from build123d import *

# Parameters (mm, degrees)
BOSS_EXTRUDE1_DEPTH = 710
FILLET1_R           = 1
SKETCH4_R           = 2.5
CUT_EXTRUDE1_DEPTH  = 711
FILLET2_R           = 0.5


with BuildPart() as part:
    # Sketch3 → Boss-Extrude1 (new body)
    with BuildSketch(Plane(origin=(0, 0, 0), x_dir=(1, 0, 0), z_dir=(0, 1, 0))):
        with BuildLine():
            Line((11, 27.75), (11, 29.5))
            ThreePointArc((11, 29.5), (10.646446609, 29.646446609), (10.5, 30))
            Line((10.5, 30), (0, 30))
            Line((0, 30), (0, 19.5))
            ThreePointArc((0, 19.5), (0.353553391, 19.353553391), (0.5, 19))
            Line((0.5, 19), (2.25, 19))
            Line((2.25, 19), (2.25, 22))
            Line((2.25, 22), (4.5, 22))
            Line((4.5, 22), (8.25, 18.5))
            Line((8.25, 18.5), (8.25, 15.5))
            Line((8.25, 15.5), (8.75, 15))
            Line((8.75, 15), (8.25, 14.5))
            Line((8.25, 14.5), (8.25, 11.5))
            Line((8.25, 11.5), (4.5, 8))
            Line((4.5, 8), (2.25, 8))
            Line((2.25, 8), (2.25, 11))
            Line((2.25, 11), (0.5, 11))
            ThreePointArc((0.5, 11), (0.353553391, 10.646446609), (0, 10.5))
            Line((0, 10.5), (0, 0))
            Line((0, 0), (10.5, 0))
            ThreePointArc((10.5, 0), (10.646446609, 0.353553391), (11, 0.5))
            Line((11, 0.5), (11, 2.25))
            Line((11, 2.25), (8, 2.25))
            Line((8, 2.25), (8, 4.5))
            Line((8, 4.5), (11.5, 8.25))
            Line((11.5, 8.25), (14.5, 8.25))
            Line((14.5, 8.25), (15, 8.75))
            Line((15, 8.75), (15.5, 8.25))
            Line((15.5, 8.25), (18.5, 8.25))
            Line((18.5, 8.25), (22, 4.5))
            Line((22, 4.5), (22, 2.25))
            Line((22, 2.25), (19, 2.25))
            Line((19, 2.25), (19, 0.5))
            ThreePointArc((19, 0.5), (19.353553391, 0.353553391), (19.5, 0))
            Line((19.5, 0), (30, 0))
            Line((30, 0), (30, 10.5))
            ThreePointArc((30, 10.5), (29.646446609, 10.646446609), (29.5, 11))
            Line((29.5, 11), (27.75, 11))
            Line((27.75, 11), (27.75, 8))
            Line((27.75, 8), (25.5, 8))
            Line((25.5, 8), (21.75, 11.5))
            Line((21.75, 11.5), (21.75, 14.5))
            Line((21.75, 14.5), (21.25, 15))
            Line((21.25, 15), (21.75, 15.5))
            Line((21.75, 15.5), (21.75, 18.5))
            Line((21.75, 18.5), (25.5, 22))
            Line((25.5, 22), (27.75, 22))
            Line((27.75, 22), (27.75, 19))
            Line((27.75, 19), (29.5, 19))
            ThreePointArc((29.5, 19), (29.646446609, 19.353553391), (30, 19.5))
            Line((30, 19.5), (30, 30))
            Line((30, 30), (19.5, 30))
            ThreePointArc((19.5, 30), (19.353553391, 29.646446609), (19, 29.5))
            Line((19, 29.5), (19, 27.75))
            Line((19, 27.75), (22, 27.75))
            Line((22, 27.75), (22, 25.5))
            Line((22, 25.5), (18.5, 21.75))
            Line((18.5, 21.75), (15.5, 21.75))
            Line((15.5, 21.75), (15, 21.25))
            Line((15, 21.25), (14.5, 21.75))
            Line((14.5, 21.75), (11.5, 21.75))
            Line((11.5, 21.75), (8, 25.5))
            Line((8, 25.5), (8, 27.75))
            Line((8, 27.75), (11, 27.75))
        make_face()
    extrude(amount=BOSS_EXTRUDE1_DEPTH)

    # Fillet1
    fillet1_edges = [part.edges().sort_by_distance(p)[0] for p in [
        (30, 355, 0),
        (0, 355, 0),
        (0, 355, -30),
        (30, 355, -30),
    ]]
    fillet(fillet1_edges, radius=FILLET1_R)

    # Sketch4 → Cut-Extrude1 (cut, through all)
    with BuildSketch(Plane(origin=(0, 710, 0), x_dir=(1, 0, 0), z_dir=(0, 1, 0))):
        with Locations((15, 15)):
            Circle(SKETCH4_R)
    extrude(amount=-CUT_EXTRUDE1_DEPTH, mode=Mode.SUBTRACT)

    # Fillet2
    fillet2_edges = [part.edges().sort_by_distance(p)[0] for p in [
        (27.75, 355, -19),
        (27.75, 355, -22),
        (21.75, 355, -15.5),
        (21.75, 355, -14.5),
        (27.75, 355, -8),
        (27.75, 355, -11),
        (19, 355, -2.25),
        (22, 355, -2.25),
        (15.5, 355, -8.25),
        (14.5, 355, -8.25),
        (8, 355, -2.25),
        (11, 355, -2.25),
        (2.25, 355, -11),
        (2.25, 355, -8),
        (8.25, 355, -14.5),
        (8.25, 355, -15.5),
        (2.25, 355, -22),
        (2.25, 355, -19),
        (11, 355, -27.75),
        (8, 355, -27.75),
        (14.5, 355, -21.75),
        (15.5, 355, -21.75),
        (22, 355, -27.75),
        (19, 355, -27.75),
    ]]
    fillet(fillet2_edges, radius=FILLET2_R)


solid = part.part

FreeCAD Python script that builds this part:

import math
import FreeCAD as App
import Part
import Sketcher

V = App.Vector


def edges_at(feature, points):
    """Names of the edges that pass closest to the given points."""
    edges = feature.Shape.Edges
    near = lambda p: min(range(len(edges)), key=lambda i: edges[i].distToShape(Part.Vertex(*p))[0])
    return sorted({f"Edge{near(p) + 1}" for p in points})

doc = App.newDocument("Part")
body = doc.addObject("PartDesign::Body", "Body")

sketch1 = body.newObject("Sketcher::SketchObject", "Sketch")
sketch1.AttachmentSupport = (doc.getObject("XZ_Plane"), [""])
sketch1.MapMode = "FlatFace"
sketch1.addGeometry(Part.LineSegment(V(11, -27.75, 0), V(11, -29.5, 0)), False)
sketch1.addGeometry(Part.ArcOfCircle(Part.Circle(V(11, -30, 0), V(0, 0, 1), 0.5), math.radians(90), math.radians(180)), False)
sketch1.addGeometry(Part.LineSegment(V(10.5, -30, 0), V(0, -30, 0)), False)
sketch1.addGeometry(Part.LineSegment(V(0, -30, 0), V(0, -19.5, 0)), False)
sketch1.addGeometry(Part.ArcOfCircle(Part.Circle(V(0, -19, 0), V(0, 0, 1), 0.5), math.radians(-90), math.radians(0)), False)
sketch1.addGeometry(Part.LineSegment(V(0.5, -19, 0), V(2.25, -19, 0)), False)
sketch1.addGeometry(Part.LineSegment(V(2.25, -19, 0), V(2.25, -22, 0)), False)
sketch1.addGeometry(Part.LineSegment(V(2.25, -22, 0), V(4.5, -22, 0)), False)
sketch1.addGeometry(Part.LineSegment(V(4.5, -22, 0), V(8.25, -18.5, 0)), False)
sketch1.addGeometry(Part.LineSegment(V(8.25, -18.5, 0), V(8.25, -15.5, 0)), False)
sketch1.addGeometry(Part.LineSegment(V(8.25, -15.5, 0), V(8.75, -15, 0)), False)
sketch1.addGeometry(Part.LineSegment(V(8.75, -15, 0), V(8.25, -14.5, 0)), False)
sketch1.addGeometry(Part.LineSegment(V(8.25, -14.5, 0), V(8.25, -11.5, 0)), False)
sketch1.addGeometry(Part.LineSegment(V(8.25, -11.5, 0), V(4.5, -8, 0)), False)
sketch1.addGeometry(Part.LineSegment(V(4.5, -8, 0), V(2.25, -8, 0)), False)
sketch1.addGeometry(Part.LineSegment(V(2.25, -8, 0), V(2.25, -11, 0)), False)
sketch1.addGeometry(Part.LineSegment(V(2.25, -11, 0), V(0.5, -11, 0)), False)
sketch1.addGeometry(Part.ArcOfCircle(Part.Circle(V(0, -11, 0), V(0, 0, 1), 0.5), math.radians(0), math.radians(90)), False)
sketch1.addGeometry(Part.LineSegment(V(0, -10.5, 0), V(0, 0, 0)), False)
sketch1.addGeometry(Part.LineSegment(V(0, 0, 0), V(10.5, 0, 0)), False)
sketch1.addGeometry(Part.ArcOfCircle(Part.Circle(V(11, 0, 0), V(0, 0, 1), 0.5), math.radians(180), math.radians(270)), False)
sketch1.addGeometry(Part.LineSegment(V(11, -0.5, 0), V(11, -2.25, 0)), False)
sketch1.addGeometry(Part.LineSegment(V(11, -2.25, 0), V(8, -2.25, 0)), False)
sketch1.addGeometry(Part.LineSegment(V(8, -2.25, 0), V(8, -4.5, 0)), False)
sketch1.addGeometry(Part.LineSegment(V(8, -4.5, 0), V(11.5, -8.25, 0)), False)
sketch1.addGeometry(Part.LineSegment(V(11.5, -8.25, 0), V(14.5, -8.25, 0)), False)
sketch1.addGeometry(Part.LineSegment(V(14.5, -8.25, 0), V(15, -8.75, 0)), False)
sketch1.addGeometry(Part.LineSegment(V(15, -8.75, 0), V(15.5, -8.25, 0)), False)
sketch1.addGeometry(Part.LineSegment(V(15.5, -8.25, 0), V(18.5, -8.25, 0)), False)
sketch1.addGeometry(Part.LineSegment(V(18.5, -8.25, 0), V(22, -4.5, 0)), False)
sketch1.addGeometry(Part.LineSegment(V(22, -4.5, 0), V(22, -2.25, 0)), False)
sketch1.addGeometry(Part.LineSegment(V(22, -2.25, 0), V(19, -2.25, 0)), False)
sketch1.addGeometry(Part.LineSegment(V(19, -2.25, 0), V(19, -0.5, 0)), False)
sketch1.addGeometry(Part.ArcOfCircle(Part.Circle(V(19, 0, 0), V(0, 0, 1), 0.5), math.radians(-90), math.radians(0)), False)
sketch1.addGeometry(Part.LineSegment(V(19.5, 0, 0), V(30, 0, 0)), False)
sketch1.addGeometry(Part.LineSegment(V(30, 0, 0), V(30, -10.5, 0)), False)
sketch1.addGeometry(Part.ArcOfCircle(Part.Circle(V(30, -11, 0), V(0, 0, 1), 0.5), math.radians(90), math.radians(180)), False)
sketch1.addGeometry(Part.LineSegment(V(29.5, -11, 0), V(27.75, -11, 0)), False)
sketch1.addGeometry(Part.LineSegment(V(27.75, -11, 0), V(27.75, -8, 0)), False)
sketch1.addGeometry(Part.LineSegment(V(27.75, -8, 0), V(25.5, -8, 0)), False)
sketch1.addGeometry(Part.LineSegment(V(25.5, -8, 0), V(21.75, -11.5, 0)), False)
sketch1.addGeometry(Part.LineSegment(V(21.75, -11.5, 0), V(21.75, -14.5, 0)), False)
sketch1.addGeometry(Part.LineSegment(V(21.75, -14.5, 0), V(21.25, -15, 0)), False)
sketch1.addGeometry(Part.LineSegment(V(21.25, -15, 0), V(21.75, -15.5, 0)), False)
sketch1.addGeometry(Part.LineSegment(V(21.75, -15.5, 0), V(21.75, -18.5, 0)), False)
sketch1.addGeometry(Part.LineSegment(V(21.75, -18.5, 0), V(25.5, -22, 0)), False)
sketch1.addGeometry(Part.LineSegment(V(25.5, -22, 0), V(27.75, -22, 0)), False)
sketch1.addGeometry(Part.LineSegment(V(27.75, -22, 0), V(27.75, -19, 0)), False)
sketch1.addGeometry(Part.LineSegment(V(27.75, -19, 0), V(29.5, -19, 0)), False)
sketch1.addGeometry(Part.ArcOfCircle(Part.Circle(V(30, -19, 0), V(0, 0, 1), 0.5), math.radians(180), math.radians(270)), False)
sketch1.addGeometry(Part.LineSegment(V(30, -19.5, 0), V(30, -30, 0)), False)
sketch1.addGeometry(Part.LineSegment(V(30, -30, 0), V(19.5, -30, 0)), False)
sketch1.addGeometry(Part.ArcOfCircle(Part.Circle(V(19, -30, 0), V(0, 0, 1), 0.5), math.radians(0), math.radians(90)), False)
sketch1.addGeometry(Part.LineSegment(V(19, -29.5, 0), V(19, -27.75, 0)), False)
sketch1.addGeometry(Part.LineSegment(V(19, -27.75, 0), V(22, -27.75, 0)), False)
sketch1.addGeometry(Part.LineSegment(V(22, -27.75, 0), V(22, -25.5, 0)), False)
sketch1.addGeometry(Part.LineSegment(V(22, -25.5, 0), V(18.5, -21.75, 0)), False)
sketch1.addGeometry(Part.LineSegment(V(18.5, -21.75, 0), V(15.5, -21.75, 0)), False)
sketch1.addGeometry(Part.LineSegment(V(15.5, -21.75, 0), V(15, -21.25, 0)), False)
sketch1.addGeometry(Part.LineSegment(V(15, -21.25, 0), V(14.5, -21.75, 0)), False)
sketch1.addGeometry(Part.LineSegment(V(14.5, -21.75, 0), V(11.5, -21.75, 0)), False)
sketch1.addGeometry(Part.LineSegment(V(11.5, -21.75, 0), V(8, -25.5, 0)), False)
sketch1.addGeometry(Part.LineSegment(V(8, -25.5, 0), V(8, -27.75, 0)), False)
sketch1.addGeometry(Part.LineSegment(V(8, -27.75, 0), V(11, -27.75, 0)), False)
sketch1.addConstraint(Sketcher.Constraint("Coincident", 0, 2, 1, 1))
sketch1.addConstraint(Sketcher.Constraint("Coincident", 1, 2, 2, 1))
sketch1.addConstraint(Sketcher.Constraint("Coincident", 2, 2, 3, 1))
sketch1.addConstraint(Sketcher.Constraint("Coincident", 3, 2, 4, 1))
sketch1.addConstraint(Sketcher.Constraint("Coincident", 4, 2, 5, 1))
sketch1.addConstraint(Sketcher.Constraint("Coincident", 5, 2, 6, 1))
sketch1.addConstraint(Sketcher.Constraint("Coincident", 6, 2, 7, 1))
sketch1.addConstraint(Sketcher.Constraint("Coincident", 7, 2, 8, 1))
sketch1.addConstraint(Sketcher.Constraint("Coincident", 8, 2, 9, 1))
sketch1.addConstraint(Sketcher.Constraint("Coincident", 9, 2, 10, 1))
sketch1.addConstraint(Sketcher.Constraint("Coincident", 10, 2, 11, 1))
sketch1.addConstraint(Sketcher.Constraint("Coincident", 11, 2, 12, 1))
sketch1.addConstraint(Sketcher.Constraint("Coincident", 12, 2, 13, 1))
sketch1.addConstraint(Sketcher.Constraint("Coincident", 13, 2, 14, 1))
sketch1.addConstraint(Sketcher.Constraint("Coincident", 14, 2, 15, 1))
sketch1.addConstraint(Sketcher.Constraint("Coincident", 15, 2, 16, 1))
sketch1.addConstraint(Sketcher.Constraint("Coincident", 16, 2, 17, 1))
sketch1.addConstraint(Sketcher.Constraint("Coincident", 17, 2, 18, 1))
sketch1.addConstraint(Sketcher.Constraint("Coincident", 18, 2, 19, 1))
sketch1.addConstraint(Sketcher.Constraint("Coincident", 19, 2, 20, 1))
sketch1.addConstraint(Sketcher.Constraint("Coincident", 20, 2, 21, 1))
sketch1.addConstraint(Sketcher.Constraint("Coincident", 21, 2, 22, 1))
sketch1.addConstraint(Sketcher.Constraint("Coincident", 22, 2, 23, 1))
sketch1.addConstraint(Sketcher.Constraint("Coincident", 23, 2, 24, 1))
sketch1.addConstraint(Sketcher.Constraint("Coincident", 24, 2, 25, 1))
sketch1.addConstraint(Sketcher.Constraint("Coincident", 25, 2, 26, 1))
sketch1.addConstraint(Sketcher.Constraint("Coincident", 26, 2, 27, 1))
sketch1.addConstraint(Sketcher.Constraint("Coincident", 27, 2, 28, 1))
sketch1.addConstraint(Sketcher.Constraint("Coincident", 28, 2, 29, 1))
sketch1.addConstraint(Sketcher.Constraint("Coincident", 29, 2, 30, 1))
sketch1.addConstraint(Sketcher.Constraint("Coincident", 30, 2, 31, 1))
sketch1.addConstraint(Sketcher.Constraint("Coincident", 31, 2, 32, 1))
sketch1.addConstraint(Sketcher.Constraint("Coincident", 32, 2, 33, 1))
sketch1.addConstraint(Sketcher.Constraint("Coincident", 33, 2, 34, 1))
sketch1.addConstraint(Sketcher.Constraint("Coincident", 34, 2, 35, 1))
sketch1.addConstraint(Sketcher.Constraint("Coincident", 35, 2, 36, 1))
sketch1.addConstraint(Sketcher.Constraint("Coincident", 36, 2, 37, 1))
sketch1.addConstraint(Sketcher.Constraint("Coincident", 37, 2, 38, 1))
sketch1.addConstraint(Sketcher.Constraint("Coincident", 38, 2, 39, 1))
sketch1.addConstraint(Sketcher.Constraint("Coincident", 39, 2, 40, 1))
sketch1.addConstraint(Sketcher.Constraint("Coincident", 40, 2, 41, 1))
sketch1.addConstraint(Sketcher.Constraint("Coincident", 41, 2, 42, 1))
sketch1.addConstraint(Sketcher.Constraint("Coincident", 42, 2, 43, 1))
sketch1.addConstraint(Sketcher.Constraint("Coincident", 43, 2, 44, 1))
sketch1.addConstraint(Sketcher.Constraint("Coincident", 44, 2, 45, 1))
sketch1.addConstraint(Sketcher.Constraint("Coincident", 45, 2, 46, 1))
sketch1.addConstraint(Sketcher.Constraint("Coincident", 46, 2, 47, 1))
sketch1.addConstraint(Sketcher.Constraint("Coincident", 47, 2, 48, 1))
sketch1.addConstraint(Sketcher.Constraint("Coincident", 48, 2, 49, 1))
sketch1.addConstraint(Sketcher.Constraint("Coincident", 49, 2, 50, 1))
sketch1.addConstraint(Sketcher.Constraint("Coincident", 50, 2, 51, 1))
sketch1.addConstraint(Sketcher.Constraint("Coincident", 51, 2, 52, 1))
sketch1.addConstraint(Sketcher.Constraint("Coincident", 52, 2, 53, 1))
sketch1.addConstraint(Sketcher.Constraint("Coincident", 53, 2, 54, 1))
sketch1.addConstraint(Sketcher.Constraint("Coincident", 54, 2, 55, 1))
sketch1.addConstraint(Sketcher.Constraint("Coincident", 55, 2, 56, 1))
sketch1.addConstraint(Sketcher.Constraint("Coincident", 56, 2, 57, 1))
sketch1.addConstraint(Sketcher.Constraint("Coincident", 57, 2, 58, 1))
sketch1.addConstraint(Sketcher.Constraint("Coincident", 58, 2, 59, 1))
sketch1.addConstraint(Sketcher.Constraint("Coincident", 59, 2, 60, 1))
sketch1.addConstraint(Sketcher.Constraint("Coincident", 60, 2, 61, 1))
sketch1.addConstraint(Sketcher.Constraint("Coincident", 61, 2, 62, 1))
sketch1.addConstraint(Sketcher.Constraint("Coincident", 62, 2, 63, 1))
sketch1.addConstraint(Sketcher.Constraint("Coincident", 63, 2, 0, 1))
sketch1.addConstraint(Sketcher.Constraint("Vertical", 0))
sketch1.addConstraint(Sketcher.Constraint("Horizontal", 2))
sketch1.addConstraint(Sketcher.Constraint("Vertical", 3))
sketch1.addConstraint(Sketcher.Constraint("Horizontal", 5))
sketch1.addConstraint(Sketcher.Constraint("Vertical", 6))
sketch1.addConstraint(Sketcher.Constraint("Horizontal", 7))
sketch1.addConstraint(Sketcher.Constraint("Vertical", 9))
sketch1.addConstraint(Sketcher.Constraint("Vertical", 12))
sketch1.addConstraint(Sketcher.Constraint("Horizontal", 14))
sketch1.addConstraint(Sketcher.Constraint("Vertical", 15))
sketch1.addConstraint(Sketcher.Constraint("Horizontal", 16))
sketch1.addConstraint(Sketcher.Constraint("Vertical", 18))
sketch1.addConstraint(Sketcher.Constraint("Horizontal", 19))
sketch1.addConstraint(Sketcher.Constraint("Vertical", 21))
sketch1.addConstraint(Sketcher.Constraint("Horizontal", 22))
sketch1.addConstraint(Sketcher.Constraint("Vertical", 23))
sketch1.addConstraint(Sketcher.Constraint("Horizontal", 25))
sketch1.addConstraint(Sketcher.Constraint("Horizontal", 28))
sketch1.addConstraint(Sketcher.Constraint("Vertical", 30))
sketch1.addConstraint(Sketcher.Constraint("Horizontal", 31))
sketch1.addConstraint(Sketcher.Constraint("Vertical", 32))
sketch1.addConstraint(Sketcher.Constraint("Horizontal", 34))
sketch1.addConstraint(Sketcher.Constraint("Vertical", 35))
sketch1.addConstraint(Sketcher.Constraint("Horizontal", 37))
sketch1.addConstraint(Sketcher.Constraint("Vertical", 38))
sketch1.addConstraint(Sketcher.Constraint("Horizontal", 39))
sketch1.addConstraint(Sketcher.Constraint("Vertical", 41))
sketch1.addConstraint(Sketcher.Constraint("Vertical", 44))
sketch1.addConstraint(Sketcher.Constraint("Horizontal", 46))
sketch1.addConstraint(Sketcher.Constraint("Vertical", 47))
sketch1.addConstraint(Sketcher.Constraint("Horizontal", 48))
sketch1.addConstraint(Sketcher.Constraint("Vertical", 50))
sketch1.addConstraint(Sketcher.Constraint("Horizontal", 51))
sketch1.addConstraint(Sketcher.Constraint("Vertical", 53))
sketch1.addConstraint(Sketcher.Constraint("Horizontal", 54))
sketch1.addConstraint(Sketcher.Constraint("Vertical", 55))
sketch1.addConstraint(Sketcher.Constraint("Horizontal", 57))
sketch1.addConstraint(Sketcher.Constraint("Horizontal", 60))
sketch1.addConstraint(Sketcher.Constraint("Vertical", 62))
sketch1.addConstraint(Sketcher.Constraint("Horizontal", 63))
sketch1.addConstraint(Sketcher.Constraint("Coincident", 18, 2, -1, 1))
sketch1.addConstraint(Sketcher.Constraint("Equal", 1, 4))
sketch1.addConstraint(Sketcher.Constraint("Equal", 4, 17))
sketch1.addConstraint(Sketcher.Constraint("Equal", 17, 20))
sketch1.addConstraint(Sketcher.Constraint("Equal", 20, 33))
sketch1.addConstraint(Sketcher.Constraint("Equal", 33, 36))
sketch1.addConstraint(Sketcher.Constraint("Equal", 36, 49))
sketch1.addConstraint(Sketcher.Constraint("Equal", 49, 52))
sketch1.addConstraint(Sketcher.Constraint("PointOnObject", 4, 3, -2))
sketch1.addConstraint(Sketcher.Constraint("PointOnObject", 17, 3, -2))
sketch1.addConstraint(Sketcher.Constraint("PointOnObject", 20, 3, -1))
sketch1.addConstraint(Sketcher.Constraint("PointOnObject", 33, 3, -1))
sketch1.addConstraint(Sketcher.Constraint("PointOnObject", 2, 2, -2))
sketch1.addConstraint(Sketcher.Constraint("PointOnObject", 33, 2, -1))
sketch1.addConstraint(Sketcher.Constraint("Perpendicular", 10, 11))
sketch1.addConstraint(Sketcher.Constraint("Perpendicular", 8, 24))
sketch1.addConstraint(Sketcher.Constraint("Parallel", 11, 26))
sketch1.addConstraint(Sketcher.Constraint("Perpendicular", 26, 27))
sketch1.addConstraint(Sketcher.Constraint("Perpendicular", 13, 29))
sketch1.addConstraint(Sketcher.Constraint("Perpendicular", 24, 40))
sketch1.addConstraint(Sketcher.Constraint("Parallel", 27, 42))
sketch1.addConstraint(Sketcher.Constraint("Perpendicular", 42, 43))
sketch1.addConstraint(Sketcher.Constraint("Perpendicular", 29, 45))
sketch1.addConstraint(Sketcher.Constraint("Perpendicular", 40, 56))
sketch1.addConstraint(Sketcher.Constraint("Parallel", 43, 58))
sketch1.addConstraint(Sketcher.Constraint("Perpendicular", 58, 59))
sketch1.addConstraint(Sketcher.Constraint("Perpendicular", 45, 61))
sketch1.addConstraint(Sketcher.Constraint("Horizontal", 17, 3, 36, 3))
sketch1.addConstraint(Sketcher.Constraint("Horizontal", 4, 3, 49, 3))
sketch1.addConstraint(Sketcher.Constraint("Horizontal", 1, 3, 52, 3))
sketch1.addConstraint(Sketcher.Constraint("Horizontal", 52, 3, 1, 2))
sketch1.addConstraint(Sketcher.Constraint("Horizontal", 49, 3, 4, 2))
sketch1.addConstraint(Sketcher.Constraint("Horizontal", 36, 3, 15, 2))
sketch1.addConstraint(Sketcher.Constraint("Horizontal", 25, 2, 27, 2))
sketch1.addConstraint(Sketcher.Constraint("Horizontal", 23, 2, 29, 2))
sketch1.addConstraint(Sketcher.Constraint("Horizontal", 22, 2, 30, 2))
sketch1.addConstraint(Sketcher.Constraint("Horizontal", 16, 2, 36, 2))
sketch1.addConstraint(Sketcher.Constraint("Horizontal", 14, 2, 38, 2))
sketch1.addConstraint(Sketcher.Constraint("Horizontal", 12, 2, 40, 2))
sketch1.addConstraint(Sketcher.Constraint("Horizontal", 11, 2, 41, 2))
sketch1.addConstraint(Sketcher.Constraint("Horizontal", 10, 2, 42, 2))
sketch1.addConstraint(Sketcher.Constraint("Horizontal", 9, 2, 43, 2))
sketch1.addConstraint(Sketcher.Constraint("Horizontal", 8, 2, 44, 2))
sketch1.addConstraint(Sketcher.Constraint("Horizontal", 7, 2, 45, 2))
sketch1.addConstraint(Sketcher.Constraint("Horizontal", 5, 2, 47, 2))
sketch1.addConstraint(Sketcher.Constraint("Horizontal", 2, 2, 50, 2))
sketch1.addConstraint(Sketcher.Constraint("Horizontal", 57, 2, 59, 2))
sketch1.addConstraint(Sketcher.Constraint("Horizontal", 55, 2, 61, 2))
sketch1.addConstraint(Sketcher.Constraint("Horizontal", 54, 2, 62, 2))
sketch1.addConstraint(Sketcher.Constraint("Vertical", 1, 3, 20, 3))
sketch1.addConstraint(Sketcher.Constraint("Vertical", 36, 3, 49, 3))
sketch1.addConstraint(Sketcher.Constraint("Vertical", 33, 3, 52, 3))
sketch1.addConstraint(Sketcher.Constraint("Vertical", 20, 3, 0, 2))
sketch1.addConstraint(Sketcher.Constraint("Vertical", 9, 2, 11, 2))
sketch1.addConstraint(Sketcher.Constraint("Vertical", 7, 2, 13, 2))
sketch1.addConstraint(Sketcher.Constraint("Vertical", 6, 2, 14, 2))
sketch1.addConstraint(Sketcher.Constraint("Vertical", 0, 2, 20, 2))
sketch1.addConstraint(Sketcher.Constraint("Vertical", 52, 3, 31, 2))
sketch1.addConstraint(Sketcher.Constraint("Vertical", 49, 3, 34, 2))
sketch1.addConstraint(Sketcher.Constraint("Vertical", 41, 2, 43, 2))
sketch1.addConstraint(Sketcher.Constraint("Vertical", 39, 2, 45, 2))
sketch1.addConstraint(Sketcher.Constraint("Vertical", 38, 2, 46, 2))
sketch1.addConstraint(Sketcher.Constraint("Vertical", 35, 2, 49, 2))
sketch1.addConstraint(Sketcher.Constraint("Vertical", 32, 2, 52, 2))
sketch1.addConstraint(Sketcher.Constraint("Vertical", 30, 2, 54, 2))
sketch1.addConstraint(Sketcher.Constraint("Vertical", 28, 2, 56, 2))
sketch1.addConstraint(Sketcher.Constraint("Vertical", 27, 2, 57, 2))
sketch1.addConstraint(Sketcher.Constraint("Vertical", 26, 2, 58, 2))
sketch1.addConstraint(Sketcher.Constraint("Vertical", 24, 2, 60, 2))
sketch1.addConstraint(Sketcher.Constraint("Equal", 22, 25))
sketch1.addConstraint(Sketcher.Constraint("Equal", 25, 28))
sketch1.addConstraint(Sketcher.Constraint("Equal", 28, 31))
sketch1.addConstraint(Sketcher.Constraint("Equal", 19, 34))
sketch1.addConstraint(Sketcher.Constraint("Equal", 16, 37))
sketch1.addConstraint(Sketcher.Constraint("Equal", 14, 39))
sketch1.addConstraint(Sketcher.Constraint("Equal", 48, 0))
sketch1.addConstraint(Sketcher.Constraint("Equal", 51, 3))
sketch1.addConstraint(Sketcher.Constraint("Equal", 63, 6))
sketch1.addConstraint(Sketcher.Constraint("Equal", 6, 9))
sketch1.addConstraint(Sketcher.Constraint("Equal", 9, 12))
sketch1.addConstraint(Sketcher.Constraint("Equal", 12, 15))
sketch1.addConstraint(Sketcher.Constraint("Equal", 3, 18))
sketch1.addConstraint(Sketcher.Constraint("Equal", 0, 21))
sketch1.addConstraint(Sketcher.Constraint("Equal", 46, 23))
sketch1.addConstraint(Sketcher.Constraint("Equal", 30, 55))
sketch1.addConstraint(Sketcher.Constraint("Equal", 13, 24))
sketch1.addConstraint(Sketcher.Constraint("Equal", 11, 26))
sketch1.addConstraint(Sketcher.Constraint("Radius", 1, 0.5))
sketch1.addConstraint(Sketcher.Constraint("DistanceX", 22, 2, 22, 1, 3.0))
sketch1.addConstraint(Sketcher.Constraint("DistanceX", 2, 2, 2, 1, 10.5))
sketch1.addConstraint(Sketcher.Constraint("DistanceY", 1, 3, -1, 1, 30.0))
sketch1.addConstraint(Sketcher.Constraint("DistanceX", 5, 1, 5, 2, 1.75))
sketch1.addConstraint(Sketcher.Constraint("DistanceX", 7, 1, 7, 2, 2.25))
sketch1.addConstraint(Sketcher.Constraint("DistanceY", 8, 2, -1, 1, 18.5))
sketch1.addConstraint(Sketcher.Constraint("DistanceX", -1, 1, 8, 2, 8.25))
pad1 = body.newObject("PartDesign::Pad", "Pad")
pad1.Profile = sketch1
pad1.Length = 710
pad1.Reversed = True
doc.recompute()

fillet = body.newObject("PartDesign::Fillet", "Fillet")
fillet.Base = (pad1, edges_at(pad1, [
    (30, 355, 0),
    (0, 355, 0),
    (0, 355, -30),
    (30, 355, -30),
]))
fillet.Radius = 1

sketch2 = body.newObject("Sketcher::SketchObject", "Sketch001")
sketch2.AttachmentSupport = (doc.getObject("XZ_Plane"), [""])
sketch2.MapMode = "FlatFace"
sketch2.AttachmentOffset = App.Placement(V(0, 0, -710), App.Rotation())
sketch2.addGeometry(Part.Circle(V(15, -15, 0), V(0, 0, 1), 2.5), False)
sketch2.addConstraint(Sketcher.Constraint("Diameter", 0, 5.0))
sketch2.addConstraint(Sketcher.Constraint("DistanceX", -1, 1, 0, 3, 15.0))
sketch2.addConstraint(Sketcher.Constraint("DistanceY", 0, 3, -1, 1, 15.0))
pocket1 = body.newObject("PartDesign::Pocket", "Pocket")
pocket1.Profile = sketch2
pocket1.Type = "ThroughAll"
pocket1.Reversed = True
doc.recompute()

fillet2 = body.newObject("PartDesign::Fillet", "Fillet001")
fillet2.Base = (pocket1, edges_at(pocket1, [
    (27.75, 355, -19),
    (27.75, 355, -22),
    (21.75, 355, -15.5),
    (21.75, 355, -14.5),
    (27.75, 355, -8),
    (27.75, 355, -11),
    (19, 355, -2.25),
    (22, 355, -2.25),
    (15.5, 355, -8.25),
    (14.5, 355, -8.25),
    (8, 355, -2.25),
    (11, 355, -2.25),
    (2.25, 355, -11),
    (2.25, 355, -8),
    (8.25, 355, -14.5),
    (8.25, 355, -15.5),
    (2.25, 355, -22),
    (2.25, 355, -19),
    (11, 355, -27.75),
    (8, 355, -27.75),
    (14.5, 355, -21.75),
    (15.5, 355, -21.75),
    (22, 355, -27.75),
    (19, 355, -27.75),
]))
fillet2.Radius = 0.5

doc.recompute()
